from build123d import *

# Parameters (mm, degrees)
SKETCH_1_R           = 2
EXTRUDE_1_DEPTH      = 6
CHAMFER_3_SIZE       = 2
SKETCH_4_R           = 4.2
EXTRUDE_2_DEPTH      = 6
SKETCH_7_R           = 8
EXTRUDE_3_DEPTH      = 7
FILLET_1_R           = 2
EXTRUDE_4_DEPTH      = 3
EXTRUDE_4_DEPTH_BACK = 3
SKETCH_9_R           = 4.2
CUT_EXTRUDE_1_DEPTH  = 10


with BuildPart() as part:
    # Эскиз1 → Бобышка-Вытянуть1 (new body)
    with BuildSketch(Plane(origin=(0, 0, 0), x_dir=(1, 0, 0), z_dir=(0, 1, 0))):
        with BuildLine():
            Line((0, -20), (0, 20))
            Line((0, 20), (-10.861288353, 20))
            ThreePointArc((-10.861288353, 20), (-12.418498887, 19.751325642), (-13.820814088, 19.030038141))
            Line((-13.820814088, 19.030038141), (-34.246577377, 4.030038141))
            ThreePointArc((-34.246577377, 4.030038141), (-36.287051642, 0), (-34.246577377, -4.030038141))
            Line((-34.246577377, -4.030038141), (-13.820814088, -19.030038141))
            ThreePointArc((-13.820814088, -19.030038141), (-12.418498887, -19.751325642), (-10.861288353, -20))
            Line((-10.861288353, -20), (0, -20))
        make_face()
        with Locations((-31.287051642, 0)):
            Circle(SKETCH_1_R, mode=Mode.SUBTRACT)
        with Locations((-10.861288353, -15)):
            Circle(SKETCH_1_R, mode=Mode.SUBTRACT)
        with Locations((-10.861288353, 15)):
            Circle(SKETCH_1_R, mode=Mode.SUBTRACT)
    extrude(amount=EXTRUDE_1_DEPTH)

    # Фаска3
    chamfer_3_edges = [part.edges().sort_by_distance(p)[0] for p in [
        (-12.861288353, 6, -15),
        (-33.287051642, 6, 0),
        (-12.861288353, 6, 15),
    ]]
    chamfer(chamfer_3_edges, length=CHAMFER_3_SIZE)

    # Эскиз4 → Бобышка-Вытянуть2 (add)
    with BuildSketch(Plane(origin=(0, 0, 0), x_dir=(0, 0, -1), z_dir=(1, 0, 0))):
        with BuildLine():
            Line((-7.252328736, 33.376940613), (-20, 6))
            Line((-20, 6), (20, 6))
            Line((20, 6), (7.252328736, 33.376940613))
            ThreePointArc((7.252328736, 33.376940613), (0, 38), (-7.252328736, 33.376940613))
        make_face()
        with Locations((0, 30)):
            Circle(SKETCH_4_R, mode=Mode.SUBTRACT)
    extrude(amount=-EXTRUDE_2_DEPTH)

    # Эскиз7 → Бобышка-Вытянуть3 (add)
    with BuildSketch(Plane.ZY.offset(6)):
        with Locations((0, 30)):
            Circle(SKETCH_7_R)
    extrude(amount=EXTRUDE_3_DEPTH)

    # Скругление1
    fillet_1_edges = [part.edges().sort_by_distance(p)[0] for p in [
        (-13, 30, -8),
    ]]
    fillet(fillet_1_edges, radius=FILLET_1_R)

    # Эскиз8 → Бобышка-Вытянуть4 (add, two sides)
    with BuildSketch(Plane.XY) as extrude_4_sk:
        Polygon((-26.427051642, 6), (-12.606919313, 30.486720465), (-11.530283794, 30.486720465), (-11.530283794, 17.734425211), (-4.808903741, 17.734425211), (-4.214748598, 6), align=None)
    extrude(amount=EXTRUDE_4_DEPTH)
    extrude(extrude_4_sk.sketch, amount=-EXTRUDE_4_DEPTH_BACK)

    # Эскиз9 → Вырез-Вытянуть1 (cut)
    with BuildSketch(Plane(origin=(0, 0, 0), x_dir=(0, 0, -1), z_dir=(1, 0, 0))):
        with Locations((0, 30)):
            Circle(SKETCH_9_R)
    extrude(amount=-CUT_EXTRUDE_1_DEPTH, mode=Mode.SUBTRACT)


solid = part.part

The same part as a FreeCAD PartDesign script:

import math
import FreeCAD as App
import Part
import Sketcher

V = App.Vector
Q = App.Units.Quantity


def edges_at(feature, points):
    """Names of the edges that pass closest to the given points."""
    edges = feature.Shape.Edges
    near = lambda p: min(range(len(edges)), key=lambda i: edges[i].distToShape(Part.Vertex(*p))[0])
    return sorted({f"Edge{near(p) + 1}" for p in points})

doc = App.newDocument("Part")
params = doc.addObject("Spreadsheet::Sheet", "Params")
for row, (alias, value) in enumerate([
    ("sketch1_diameter", "4 mm"),
    ("sketch1_radius", "5 mm"),
    ("sketch1_height", "40 mm"),
    ("pad1_length", "6 mm"),
    ("chamfer_size", "2 mm"),
    ("sketch2_radius", "8 mm"),
    ("sketch2_diameter", "8.4 mm"),
    ("sketch2_height", "40 mm"),
    ("pad2_length", "6 mm"),
    ("sketch3_diameter", "16 mm"),
    ("pad3_length", "7 mm"),
    ("fillet_radius", "2 mm"),
    ("pad4_length", "3 mm"),
    ("pad4_length2", "3 mm"),
    ("sketch5_diameter", "8.4 mm"),
    ("pocket1_length", "10 mm"),
], start=1):
    params.set(f"A{row}", alias)
    params.set(f"B{row}", "=" + value)
    params.setAlias(f"B{row}", alias)

body = doc.addObject("PartDesign::Body", "Body")

sketch1 = body.newObject("Sketcher::SketchObject", "Sketch")
sketch1.AttachmentSupport = (doc.getObject("XZ_Plane"), [""])
sketch1.MapMode = "FlatFace"
sketch1.addGeometry(Part.LineSegment(V(0, 20, 0), V(0, -20, 0)), False)
sketch1.addGeometry(Part.LineSegment(V(0, -20, 0), V(-10.9, -20, 0)), False)
sketch1.addGeometry(Part.ArcOfCircle(Part.Circle(V(-10.9, -15, 0), V(0, 0, 1), 5), math.radians(-126), math.radians(-90)), False)
sketch1.addGeometry(Part.LineSegment(V(-13.8, -19, 0), V(-34.2, -4, 0)), False)
sketch1.addGeometry(Part.ArcOfCircle(Part.Circle(V(-31.3, 0, 0), V(0, 0, 1), 5), math.radians(126), math.radians(234)), False)
sketch1.addGeometry(Part.LineSegment(V(-34.2, 4, 0), V(-13.8, 19, 0)), False)
sketch1.addGeometry(Part.ArcOfCircle(Part.Circle(V(-10.9, 15, 0), V(0, 0, 1), 5), math.radians(90), math.radians(126)), False)
sketch1.addGeometry(Part.LineSegment(V(-10.9, 20, 0), V(0, 20, 0)), False)
sketch1.addGeometry(Part.Circle(V(-10.9, 15, 0), V(0, 0, 1), 2), False)
sketch1.addGeometry(Part.Circle(V(-31.3, 0, 0), V(0, 0, 1), 2), False)
sketch1.addGeometry(Part.Circle(V(-10.9, -15, 0), V(0, 0, 1), 2), False)
sketch1.addConstraint(Sketcher.Constraint("Coincident", 0, 2, 1, 1))
sketch1.addConstraint(Sketcher.Constraint("Tangent", 1, 2, 2, 2))
sketch1.addConstraint(Sketcher.Constraint("Tangent", 2, 1, 3, 1))
sketch1.addConstraint(Sketcher.Constraint("Tangent", 3, 2, 4, 2))
sketch1.addConstraint(Sketcher.Constraint("Tangent", 4, 1, 5, 1))
sketch1.addConstraint(Sketcher.Constraint("Tangent", 5, 2, 6, 2))
sketch1.addConstraint(Sketcher.Constraint("Tangent", 6, 1, 7, 1))
sketch1.addConstraint(Sketcher.Constraint("Coincident", 7, 2, 0, 1))
sketch1.addConstraint(Sketcher.Constraint("Vertical", 0))
sketch1.addConstraint(Sketcher.Constraint("Horizontal", 1))
sketch1.addConstraint(Sketcher.Constraint("Horizontal", 7))
sketch1.addConstraint(Sketcher.Constraint("Coincident", 8, 3, 6, 3))
sketch1.addConstraint(Sketcher.Constraint("Coincident", 9, 3, 4, 3))
sketch1.addConstraint(Sketcher.Constraint("Coincident", 10, 3, 2, 3))
sketch1.addConstraint(Sketcher.Constraint("Equal", 2, 4))
sketch1.addConstraint(Sketcher.Constraint("Equal", 4, 6))
sketch1.addConstraint(Sketcher.Constraint("Equal", 8, 9))
sketch1.addConstraint(Sketcher.Constraint("Equal", 9, 10))
sketch1.addConstraint(Sketcher.Constraint("Symmetric", 0, 2, 7, 2, -1, 1))
sketch1.addConstraint(Sketcher.Constraint("Symmetric", 3, 2, 4, 1, -1))
sketch1.addConstraint(Sketcher.Constraint("Diameter", 8, Q("4 mm")))
sketch1.addConstraint(Sketcher.Constraint("Radius", 2, Q("5 mm")))
sketch1.addConstraint(Sketcher.Constraint("DistanceY", 0, 2, 0, 1, Q("40 mm")))
sketch1.addConstraint(Sketcher.Constraint("Distance", 3, Q("25.341898 mm")))
sketch1.addConstraint(Sketcher.Constraint("DistanceX", 1, 2, 1, 1, Q("10.861288 mm")))
sketch1.setExpression("Constraints[20]", "Params.sketch1_diameter")
sketch1.setExpression("Constraints[21]", "Params.sketch1_radius")
sketch1.setExpression("Constraints[22]", "Params.sketch1_height")
pad1 = body.newObject("PartDesign::Pad", "Pad")
pad1.Profile = sketch1
pad1.setExpression("Length", "Params.pad1_length")
pad1.Reversed = True
doc.recompute()

chamfer = body.newObject("PartDesign::Chamfer", "Chamfer")
chamfer.Base = (pad1, edges_at(pad1, [(-12.861, 6, -15), (-33.287, 6, 0), (-12.861, 6, 15)]))
chamfer.setExpression("Size", "Params.chamfer_size")

sketch2 = body.newObject("Sketcher::SketchObject", "Sketch001")
sketch2.AttachmentSupport = (doc.getObject("YZ_Plane"), [""])
sketch2.MapMode = "FlatFace"
sketch2.addGeometry(Part.LineSegment(V(33.4, 7.3, 0), V(6, 20, 0)), False)
sketch2.addGeometry(Part.LineSegment(V(6, 20, 0), V(6, -20, 0)), False)
sketch2.addGeometry(Part.LineSegment(V(6, -20, 0), V(33.4, -7.3, 0)), False)
sketch2.addGeometry(Part.ArcOfCircle(Part.Circle(V(30, 0, 0), V(0, 0, 1), 8), math.radians(-65), math.radians(65)), False)
sketch2.addGeometry(Part.Circle(V(30, 0, 0), V(0, 0, 1), 4.2), False)
sketch2.addConstraint(Sketcher.Constraint("Coincident", 0, 2, 1, 1))
sketch2.addConstraint(Sketcher.Constraint("Coincident", 1, 2, 2, 1))
sketch2.addConstraint(Sketcher.Constraint("Tangent", 2, 2, 3, 1))
sketch2.addConstraint(Sketcher.Constraint("Tangent", 3, 2, 0, 1))
sketch2.addConstraint(Sketcher.Constraint("Vertical", 1))
sketch2.addConstraint(Sketcher.Constraint("Coincident", 4, 3, 3, 3))
sketch2.addConstraint(Sketcher.Constraint("Symmetric", 2, 2, 3, 2, -1))
sketch2.addConstraint(Sketcher.Constraint("Radius", 3, Q("8 mm")))
sketch2.addConstraint(Sketcher.Constraint("Diameter", 4, Q("8.4 mm")))
sketch2.addConstraint(Sketcher.Constraint("DistanceY", 1, 2, 1, 1, Q("40 mm")))
sketch2.addConstraint(Sketcher.Constraint("DistanceX", -1, 1, 3, 3, Q("30 mm")))
sketch2.addConstraint(Sketcher.Constraint("DistanceX", -1, 1, 0, 2, Q("6 mm")))
sketch2.setExpression("Constraints[7]", "Params.sketch2_radius")
sketch2.setExpression("Constraints[8]", "Params.sketch2_diameter")
sketch2.setExpression("Constraints[9]", "Params.sketch2_height")
pad2 = body.newObject("PartDesign::Pad", "Pad001")
pad2.Profile = sketch2
pad2.setExpression("Length", "Params.pad2_length")
pad2.Reversed = True

sketch3 = body.newObject("Sketcher::SketchObject", "Sketch002")
sketch3.AttachmentSupport = (doc.getObject("YZ_Plane"), [""])
sketch3.MapMode = "FlatFace"
sketch3.AttachmentOffset = App.Placement(V(0, 0, -6), App.Rotation())
sketch3.addGeometry(Part.Circle(V(30, 0, 0), V(0, 0, 1), 8), False)
sketch3.addConstraint(Sketcher.Constraint("PointOnObject", 0, 3, -1))
sketch3.addConstraint(Sketcher.Constraint("Diameter", 0, Q("16 mm")))
sketch3.addConstraint(Sketcher.Constraint("DistanceX", -1, 1, 0, 3, Q("30 mm")))
sketch3.setExpression("Constraints[1]", "Params.sketch3_diameter")
pad3 = body.newObject("PartDesign::Pad", "Pad002")
pad3.Profile = sketch3
pad3.setExpression("Length", "Params.pad3_length")
pad3.Reversed = True
doc.recompute()

fillet = body.newObject("PartDesign::Fillet", "Fillet")
fillet.Base = (pad3, edges_at(pad3, [(-13, 30, -8)]))
fillet.setExpression("Radius", "Params.fillet_radius")

sketch4 = body.newObject("Sketcher::SketchObject", "Sketch003")
sketch4.AttachmentSupport = (doc.getObject("XY_Plane"), [""])
sketch4.MapMode = "FlatFace"
sketch4.addGeometry(Part.LineSegment(V(-12.6, 30.5, 0), V(-26.4, 6, 0)), False)
sketch4.addGeometry(Part.LineSegment(V(-26.4, 6, 0), V(-4.2, 6, 0)), False)
sketch4.addGeometry(Part.LineSegment(V(-4.2, 6, 0), V(-4.8, 17.7, 0)), False)
sketch4.addGeometry(Part.LineSegment(V(-4.8, 17.7, 0), V(-11.5, 17.7, 0)), False)
sketch4.addGeometry(Part.LineSegment(V(-11.5, 17.7, 0), V(-11.5, 30.5, 0)), False)
sketch4.addGeometry(Part.LineSegment(V(-11.5, 30.5, 0), V(-12.6, 30.5, 0)), False)
sketch4.addConstraint(Sketcher.Constraint("Coincident", 0, 2, 1, 1))
sketch4.addConstraint(Sketcher.Constraint("Coincident", 1, 2, 2, 1))
sketch4.addConstraint(Sketcher.Constraint("Coincident", 2, 2, 3, 1))
sketch4.addConstraint(Sketcher.Constraint("Coincident", 3, 2, 4, 1))
sketch4.addConstraint(Sketcher.Constraint("Coincident", 4, 2, 5, 1))
sketch4.addConstraint(Sketcher.Constraint("Coincident", 5, 2, 0, 1))
sketch4.addConstraint(Sketcher.Constraint("Horizontal", 1))
sketch4.addConstraint(Sketcher.Constraint("Horizontal", 3))
sketch4.addConstraint(Sketcher.Constraint("Vertical", 4))
sketch4.addConstraint(Sketcher.Constraint("Horizontal", 5))
sketch4.addConstraint(Sketcher.Constraint("DistanceY", -1, 1, 0, 2, Q("6 mm")))
sketch4.addConstraint(Sketcher.Constraint("DistanceX", 3, 2, 3, 1, Q("6.72138 mm")))
sketch4.addConstraint(Sketcher.Constraint("Distance", 0, Q("28.117531 mm")))
sketch4.addConstraint(Sketcher.Constraint("DistanceX", 1, 1, 1, 2, Q("22.212303 mm")))
sketch4.addConstraint(Sketcher.Constraint("DistanceX", 5, 2, 5, 1, Q("1.076636 mm")))
sketch4.addConstraint(Sketcher.Constraint("DistanceY", 4, 1, 4, 2, Q("12.752295 mm")))
sketch4.addConstraint(Sketcher.Constraint("DistanceX", 0, 2, -1, 1, Q("26.427052 mm")))
sketch4.addConstraint(Sketcher.Constraint("DistanceY", -1, 1, 4, 2, Q("30.48672 mm")))
pad4 = body.newObject("PartDesign::Pad", "Pad003")
pad4.Profile = sketch4
pad4.Type = "TwoLengths"
pad4.setExpression("Length", "Params.pad4_length")
pad4.setExpression("Length2", "Params.pad4_length2")

sketch5 = body.newObject("Sketcher::SketchObject", "Sketch004")
sketch5.AttachmentSupport = (doc.getObject("YZ_Plane"), [""])
sketch5.MapMode = "FlatFace"
sketch5.addGeometry(Part.Circle(V(30, 0, 0), V(0, 0, 1), 4.2), False)
sketch5.addConstraint(Sketcher.Constraint("PointOnObject", 0, 3, -1))
sketch5.addConstraint(Sketcher.Constraint("Diameter", 0, Q("8.4 mm")))
sketch5.addConstraint(Sketcher.Constraint("DistanceX", -1, 1, 0, 3, Q("30 mm")))
sketch5.setExpression("Constraints[1]", "Params.sketch5_diameter")
pocket1 = body.newObject("PartDesign::Pocket", "Pocket")
pocket1.Profile = sketch5
pocket1.setExpression("Length", "Params.pocket1_length")

doc.recompute()
